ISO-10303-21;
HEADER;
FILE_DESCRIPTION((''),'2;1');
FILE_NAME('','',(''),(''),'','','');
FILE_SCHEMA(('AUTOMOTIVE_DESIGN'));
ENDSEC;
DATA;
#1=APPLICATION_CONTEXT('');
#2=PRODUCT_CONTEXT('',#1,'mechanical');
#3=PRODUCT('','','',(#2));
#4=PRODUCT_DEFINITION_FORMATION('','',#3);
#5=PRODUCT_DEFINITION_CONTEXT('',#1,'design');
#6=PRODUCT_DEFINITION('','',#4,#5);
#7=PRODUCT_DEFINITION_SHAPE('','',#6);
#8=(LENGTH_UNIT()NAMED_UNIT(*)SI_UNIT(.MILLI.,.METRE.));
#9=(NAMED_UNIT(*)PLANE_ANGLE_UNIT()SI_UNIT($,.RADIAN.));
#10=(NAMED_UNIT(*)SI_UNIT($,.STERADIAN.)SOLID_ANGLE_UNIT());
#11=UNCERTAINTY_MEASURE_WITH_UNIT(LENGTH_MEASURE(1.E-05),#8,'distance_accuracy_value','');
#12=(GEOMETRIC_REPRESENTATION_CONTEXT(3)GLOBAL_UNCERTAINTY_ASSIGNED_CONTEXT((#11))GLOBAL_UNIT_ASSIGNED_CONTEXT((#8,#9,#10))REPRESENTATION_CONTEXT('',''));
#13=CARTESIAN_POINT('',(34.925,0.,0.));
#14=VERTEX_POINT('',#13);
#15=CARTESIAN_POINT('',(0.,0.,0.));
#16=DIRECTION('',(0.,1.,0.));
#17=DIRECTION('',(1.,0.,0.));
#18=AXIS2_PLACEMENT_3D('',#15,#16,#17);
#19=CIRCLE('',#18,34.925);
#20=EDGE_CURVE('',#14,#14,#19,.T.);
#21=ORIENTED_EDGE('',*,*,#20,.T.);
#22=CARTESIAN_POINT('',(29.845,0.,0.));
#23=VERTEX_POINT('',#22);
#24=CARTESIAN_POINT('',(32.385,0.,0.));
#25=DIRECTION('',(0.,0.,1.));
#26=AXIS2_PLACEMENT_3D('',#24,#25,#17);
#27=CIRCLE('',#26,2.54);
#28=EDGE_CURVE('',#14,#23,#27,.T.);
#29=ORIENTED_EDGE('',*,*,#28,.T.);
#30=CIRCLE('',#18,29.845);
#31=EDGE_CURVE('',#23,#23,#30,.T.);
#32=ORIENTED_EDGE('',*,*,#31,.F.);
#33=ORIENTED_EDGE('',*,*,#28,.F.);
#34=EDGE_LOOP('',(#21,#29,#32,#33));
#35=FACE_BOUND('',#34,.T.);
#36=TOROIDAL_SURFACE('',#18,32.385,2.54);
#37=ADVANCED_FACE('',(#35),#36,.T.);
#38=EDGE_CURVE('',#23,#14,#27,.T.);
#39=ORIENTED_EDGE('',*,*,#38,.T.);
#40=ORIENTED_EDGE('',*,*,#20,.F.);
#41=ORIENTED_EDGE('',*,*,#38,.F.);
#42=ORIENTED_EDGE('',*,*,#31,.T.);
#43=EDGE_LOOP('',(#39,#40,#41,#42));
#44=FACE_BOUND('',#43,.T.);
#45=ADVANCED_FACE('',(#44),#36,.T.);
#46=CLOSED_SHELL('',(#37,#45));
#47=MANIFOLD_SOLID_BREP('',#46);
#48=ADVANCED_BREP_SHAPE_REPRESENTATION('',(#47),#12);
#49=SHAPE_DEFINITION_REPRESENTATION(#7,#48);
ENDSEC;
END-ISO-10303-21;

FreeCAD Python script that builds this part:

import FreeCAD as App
import Part
import Sketcher
from FreeCAD import Vector
Q = App.Units.Quantity

doc = App.newDocument("Part")
body = doc.addObject("PartDesign::Body", "Body")

# Sketch on XY plane
sketch1 = body.newObject("Sketcher::SketchObject", "Sketch")
sketch1.AttachmentSupport = (doc.getObject("XY_Plane"), [""])
sketch1.MapMode = "FlatFace"
sketch1.addGeometry(Part.Circle(Vector(32.4, 0, 0), Vector(0, 0, 1), 2.5), False)
sketch1.addConstraint(Sketcher.Constraint("PointOnObject", 0, 3, -1))
sketch1.addConstraint(Sketcher.Constraint("Diameter", 0, Q("0.2 in")))
sketch1.addConstraint(Sketcher.Constraint("DistanceX", -1, 1, 0, 3, Q("1.275 in")))
revolution = body.newObject("PartDesign::Revolution", "Revolution")
revolution.Profile = sketch1
revolution.ReferenceAxis = (sketch1, ["V_Axis"])
revolution.Angle = 360

doc.recompute()
